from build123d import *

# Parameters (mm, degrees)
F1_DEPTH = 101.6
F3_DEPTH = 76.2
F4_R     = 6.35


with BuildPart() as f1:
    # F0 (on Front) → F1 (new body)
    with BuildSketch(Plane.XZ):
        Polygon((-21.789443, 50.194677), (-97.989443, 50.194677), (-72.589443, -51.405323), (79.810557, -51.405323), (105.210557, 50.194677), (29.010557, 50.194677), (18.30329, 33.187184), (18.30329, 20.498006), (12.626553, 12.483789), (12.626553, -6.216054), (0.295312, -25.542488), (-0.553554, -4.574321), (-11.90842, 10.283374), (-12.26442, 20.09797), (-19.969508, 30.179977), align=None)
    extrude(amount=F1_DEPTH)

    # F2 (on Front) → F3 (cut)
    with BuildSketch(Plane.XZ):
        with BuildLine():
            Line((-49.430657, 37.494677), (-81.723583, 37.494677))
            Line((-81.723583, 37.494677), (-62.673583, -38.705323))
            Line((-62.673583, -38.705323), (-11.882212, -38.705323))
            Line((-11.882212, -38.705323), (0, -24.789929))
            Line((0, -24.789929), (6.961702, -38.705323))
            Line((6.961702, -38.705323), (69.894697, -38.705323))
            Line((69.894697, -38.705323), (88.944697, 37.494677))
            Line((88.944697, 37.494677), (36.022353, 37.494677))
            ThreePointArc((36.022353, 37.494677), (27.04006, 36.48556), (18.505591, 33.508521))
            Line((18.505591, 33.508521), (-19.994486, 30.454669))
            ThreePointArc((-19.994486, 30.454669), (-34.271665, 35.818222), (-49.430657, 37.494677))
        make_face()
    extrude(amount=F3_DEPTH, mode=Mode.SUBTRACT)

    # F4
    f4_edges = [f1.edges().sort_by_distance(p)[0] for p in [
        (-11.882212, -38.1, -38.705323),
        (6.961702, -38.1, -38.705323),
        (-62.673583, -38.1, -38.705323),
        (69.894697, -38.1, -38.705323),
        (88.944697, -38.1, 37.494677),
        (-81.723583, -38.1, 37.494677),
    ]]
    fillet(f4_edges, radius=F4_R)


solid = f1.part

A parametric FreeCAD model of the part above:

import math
import FreeCAD as App
import Part
import Sketcher

V = App.Vector
Q = App.Units.Quantity


def edges_at(feature, points):
    """Names of the edges that pass closest to the given points."""
    edges = feature.Shape.Edges
    near = lambda p: min(range(len(edges)), key=lambda i: edges[i].distToShape(Part.Vertex(*p))[0])
    return sorted({f"Edge{near(p) + 1}" for p in points})


def add_polygon(sketch, points):
    """Adds a closed chain of lines whose ends are joined by coincident constraints."""
    first, n = sketch.GeometryCount, len(points)
    for a, b in zip(points, points[1:] + points[:1]):
        sketch.addGeometry(Part.LineSegment(App.Vector(*a, 0), App.Vector(*b, 0)), False)
    for i in range(n):
        sketch.addConstraint(Sketcher.Constraint("Coincident", first + i, 2, first + (i + 1) % n, 1))

doc = App.newDocument("Part")
body = doc.addObject("PartDesign::Body", "Body")

sketch1 = body.newObject("Sketcher::SketchObject", "Sketch")
sketch1.AttachmentSupport = (doc.getObject("XZ_Plane"), [""])
sketch1.MapMode = "FlatFace"
add_polygon(sketch1, [(-21.789443, 50.194677), (-97.989443, 50.194677), (-72.589443, -51.405323), (79.810557, -51.405323), (105.210557, 50.194677), (29.010557, 50.194677), (18.30329, 33.187184), (18.30329, 20.498006), (12.626553, 12.483789), (12.626553, -6.216054), (0.295312, -25.542488), (-0.553554, -4.574321), (-11.90842, 10.283374), (-12.26442, 20.09797), (-19.969508, 30.179977)])
sketch1.addConstraint(Sketcher.Constraint("Horizontal", 0))
sketch1.addConstraint(Sketcher.Constraint("Horizontal", 2))
sketch1.addConstraint(Sketcher.Constraint("Horizontal", 4))
sketch1.addConstraint(Sketcher.Constraint("Vertical", 6))
sketch1.addConstraint(Sketcher.Constraint("Vertical", 8))
sketch1.addConstraint(Sketcher.Constraint("Parallel", 11, 13))
sketch1.addConstraint(Sketcher.Constraint("Horizontal", 0, 2, 3, 2))
sketch1.addConstraint(Sketcher.Constraint("Equal", 0, 4))
sketch1.addConstraint(Sketcher.Constraint("Equal", 1, 3))
sketch1.addConstraint(Sketcher.Constraint("Equal", 7, 12))
sketch1.addConstraint(Sketcher.Constraint("Equal", 5, 14))
sketch1.addConstraint(Sketcher.Constraint("DistanceX", 0, 2, 0, 1, Q("3 in")))
sketch1.addConstraint(Sketcher.Constraint("DistanceX", 2, 1, 2, 2, Q("6 in")))
sketch1.addConstraint(Sketcher.Constraint("DistanceX", 0, 2, 1, 2, Q("1 in")))
sketch1.addConstraint(Sketcher.Constraint("DistanceY", 1, 2, 0, 2, Q("4 in")))
sketch1.addConstraint(Sketcher.Constraint("DistanceY", 6, 2, 6, 1, 12.689178))
sketch1.addConstraint(Sketcher.Constraint("DistanceX", 12, 2, 11, 2, 0.356))
sketch1.addConstraint(Sketcher.Constraint("DistanceX", 13, 2, 5, 2, 38.272798))
sketch1.addConstraint(Sketcher.Constraint("DistanceY", 13, 2, 14, 2, 20.0147))
sketch1.addConstraint(Sketcher.Constraint("Distance", 7, 9.82105))
sketch1.addConstraint(Sketcher.Constraint("Distance", 11, 18.699842))
sketch1.addConstraint(Sketcher.Constraint("Distance", 13, 12.689178))
sketch1.addConstraint(Sketcher.Constraint("DistanceY", 8, 2, 8, 1, 18.699843))
sketch1.addConstraint(Sketcher.Constraint("DistanceX", -1, 1, 5, 2, 18.30329))
sketch1.addConstraint(Sketcher.Constraint("DistanceY", -1, 1, 7, 2, 12.483789))
sketch1.addConstraint(Sketcher.Constraint("DistanceY", 10, 2, -1, 1, 4.574321))
sketch1.addConstraint(Sketcher.Constraint("DistanceX", 11, 2, -1, 1, 11.90842))
sketch1.addConstraint(Sketcher.Constraint("DistanceY", 6, 2, 4, 2, 29.696671))
sketch1.addConstraint(Sketcher.Constraint("DistanceX", 9, 2, 8, 2, 12.331241))
sketch1.addConstraint(Sketcher.Constraint("Distance", 9, 22.925326))
pad1 = body.newObject("PartDesign::Pad", "Pad")
pad1.Profile = sketch1
pad1.Length = Q("4 in")

sketch2 = body.newObject("Sketcher::SketchObject", "Sketch001")
sketch2.AttachmentSupport = (doc.getObject("XZ_Plane"), [""])
sketch2.MapMode = "FlatFace"
sketch2.addGeometry(Part.LineSegment(V(-49.430657, 37.494677, 0), V(-81.723583, 37.494677, 0)), False)
sketch2.addGeometry(Part.LineSegment(V(-81.723583, 37.494677, 0), V(-62.673583, -38.705323, 0)), False)
sketch2.addGeometry(Part.LineSegment(V(-62.673583, -38.705323, 0), V(-11.882212, -38.705323, 0)), False)
sketch2.addGeometry(Part.LineSegment(V(-11.882212, -38.705323, 0), V(0, -24.789929, 0)), False)
sketch2.addGeometry(Part.LineSegment(V(0, -24.789929, 0), V(6.961702, -38.705323, 0)), False)
sketch2.addGeometry(Part.LineSegment(V(6.961702, -38.705323, 0), V(69.894697, -38.705323, 0)), False)
sketch2.addGeometry(Part.LineSegment(V(69.894697, -38.705323, 0), V(88.944697, 37.494677, 0)), False)
sketch2.addGeometry(Part.LineSegment(V(88.944697, 37.494677, 0), V(36.022353, 37.494677, 0)), False)
sketch2.addGeometry(Part.ArcOfCircle(Part.Circle(V(36.022356, -2.986241, 0), V(0, 0, 1), 40.480918), math.radians(90.000005), math.radians(115.640087)), False)
sketch2.addGeometry(Part.LineSegment(V(18.505591, 33.508521, 0), V(-19.994486, 30.454669, 0)), False)
sketch2.addGeometry(Part.ArcOfCircle(Part.Circle(V(-48.543201, -23.854918, 0), V(0, 0, 1), 61.356013), math.radians(62.270612), math.radians(90.828757)), False)
sketch2.addConstraint(Sketcher.Constraint("Coincident", 0, 2, 1, 1))
sketch2.addConstraint(Sketcher.Constraint("Coincident", 1, 2, 2, 1))
sketch2.addConstraint(Sketcher.Constraint("Coincident", 2, 2, 3, 1))
sketch2.addConstraint(Sketcher.Constraint("Coincident", 3, 2, 4, 1))
sketch2.addConstraint(Sketcher.Constraint("Coincident", 4, 2, 5, 1))
sketch2.addConstraint(Sketcher.Constraint("Coincident", 5, 2, 6, 1))
sketch2.addConstraint(Sketcher.Constraint("Coincident", 6, 2, 7, 1))
sketch2.addConstraint(Sketcher.Constraint("Tangent", 7, 2, 8, 1))
sketch2.addConstraint(Sketcher.Constraint("Coincident", 8, 2, 9, 1))
sketch2.addConstraint(Sketcher.Constraint("Coincident", 9, 2, 10, 1))
sketch2.addConstraint(Sketcher.Constraint("Coincident", 10, 2, 0, 1))
sketch2.addConstraint(Sketcher.Constraint("Horizontal", 0))
sketch2.addConstraint(Sketcher.Constraint("Horizontal", 2))
sketch2.addConstraint(Sketcher.Constraint("Horizontal", 5))
sketch2.addConstraint(Sketcher.Constraint("Horizontal", 7))
sketch2.addConstraint(Sketcher.Constraint("PointOnObject", 3, 2, -2))
sketch2.addConstraint(Sketcher.Constraint("Horizontal", 2, 2, 4, 2))
sketch2.addConstraint(Sketcher.Constraint("Horizontal", 0, 2, 6, 2))
sketch2.addConstraint(Sketcher.Constraint("Equal", 1, 6))
sketch2.addConstraint(Sketcher.Constraint("DistanceY", 1, 2, 0, 2, Q("3 in")))
sketch2.addConstraint(Sketcher.Constraint("DistanceX", 0, 2, 1, 2, Q("0.75 in")))
sketch2.addConstraint(Sketcher.Constraint("Radius", 8, 40.480918))
sketch2.addConstraint(Sketcher.Constraint("Radius", 10, 61.356013))
sketch2.addConstraint(Sketcher.Constraint("DistanceX", 2, 1, 2, 2, 50.791371))
sketch2.addConstraint(Sketcher.Constraint("DistanceX", 10, 3, -1, 1, 48.543201))
sketch2.addConstraint(Sketcher.Constraint("DistanceX", -1, 1, 4, 2, 6.961702))
sketch2.addConstraint(Sketcher.Constraint("DistanceX", 10, 3, 5, 2, 118.437898))
sketch2.addConstraint(Sketcher.Constraint("Distance", 3, 18.298228))
sketch2.addConstraint(Sketcher.Constraint("DistanceX", 0, 2, 0, 1, 32.292926))
sketch2.addConstraint(Sketcher.Constraint("DistanceX", 7, 2, 7, 1, 52.922344))
sketch2.addConstraint(Sketcher.Constraint("DistanceY", 8, 3, -1, 1, 2.986241))
sketch2.addConstraint(Sketcher.Constraint("DistanceY", 3, 2, -1, 1, 24.789929))
sketch2.addConstraint(Sketcher.Constraint("DistanceX", -1, 1, 8, 2, 18.505591))
sketch2.addConstraint(Sketcher.Constraint("DistanceY", -1, 1, 9, 2, 30.454669))
pocket1 = body.newObject("PartDesign::Pocket", "Pocket")
pocket1.Profile = sketch2
pocket1.Length = Q("3 in")
pocket1.Reversed = True
doc.recompute()

fillet = body.newObject("PartDesign::Fillet", "Fillet")
fillet.Base = (pocket1, edges_at(pocket1, [
    (-11.882, -38.1, -38.705),
    (6.962, -38.1, -38.705),
    (-62.674, -38.1, -38.705),
    (69.895, -38.1, -38.705),
    (88.945, -38.1, 37.495),
    (-81.724, -38.1, 37.495),
]))
fillet.Radius = Q("0.25 in")

doc.recompute()
